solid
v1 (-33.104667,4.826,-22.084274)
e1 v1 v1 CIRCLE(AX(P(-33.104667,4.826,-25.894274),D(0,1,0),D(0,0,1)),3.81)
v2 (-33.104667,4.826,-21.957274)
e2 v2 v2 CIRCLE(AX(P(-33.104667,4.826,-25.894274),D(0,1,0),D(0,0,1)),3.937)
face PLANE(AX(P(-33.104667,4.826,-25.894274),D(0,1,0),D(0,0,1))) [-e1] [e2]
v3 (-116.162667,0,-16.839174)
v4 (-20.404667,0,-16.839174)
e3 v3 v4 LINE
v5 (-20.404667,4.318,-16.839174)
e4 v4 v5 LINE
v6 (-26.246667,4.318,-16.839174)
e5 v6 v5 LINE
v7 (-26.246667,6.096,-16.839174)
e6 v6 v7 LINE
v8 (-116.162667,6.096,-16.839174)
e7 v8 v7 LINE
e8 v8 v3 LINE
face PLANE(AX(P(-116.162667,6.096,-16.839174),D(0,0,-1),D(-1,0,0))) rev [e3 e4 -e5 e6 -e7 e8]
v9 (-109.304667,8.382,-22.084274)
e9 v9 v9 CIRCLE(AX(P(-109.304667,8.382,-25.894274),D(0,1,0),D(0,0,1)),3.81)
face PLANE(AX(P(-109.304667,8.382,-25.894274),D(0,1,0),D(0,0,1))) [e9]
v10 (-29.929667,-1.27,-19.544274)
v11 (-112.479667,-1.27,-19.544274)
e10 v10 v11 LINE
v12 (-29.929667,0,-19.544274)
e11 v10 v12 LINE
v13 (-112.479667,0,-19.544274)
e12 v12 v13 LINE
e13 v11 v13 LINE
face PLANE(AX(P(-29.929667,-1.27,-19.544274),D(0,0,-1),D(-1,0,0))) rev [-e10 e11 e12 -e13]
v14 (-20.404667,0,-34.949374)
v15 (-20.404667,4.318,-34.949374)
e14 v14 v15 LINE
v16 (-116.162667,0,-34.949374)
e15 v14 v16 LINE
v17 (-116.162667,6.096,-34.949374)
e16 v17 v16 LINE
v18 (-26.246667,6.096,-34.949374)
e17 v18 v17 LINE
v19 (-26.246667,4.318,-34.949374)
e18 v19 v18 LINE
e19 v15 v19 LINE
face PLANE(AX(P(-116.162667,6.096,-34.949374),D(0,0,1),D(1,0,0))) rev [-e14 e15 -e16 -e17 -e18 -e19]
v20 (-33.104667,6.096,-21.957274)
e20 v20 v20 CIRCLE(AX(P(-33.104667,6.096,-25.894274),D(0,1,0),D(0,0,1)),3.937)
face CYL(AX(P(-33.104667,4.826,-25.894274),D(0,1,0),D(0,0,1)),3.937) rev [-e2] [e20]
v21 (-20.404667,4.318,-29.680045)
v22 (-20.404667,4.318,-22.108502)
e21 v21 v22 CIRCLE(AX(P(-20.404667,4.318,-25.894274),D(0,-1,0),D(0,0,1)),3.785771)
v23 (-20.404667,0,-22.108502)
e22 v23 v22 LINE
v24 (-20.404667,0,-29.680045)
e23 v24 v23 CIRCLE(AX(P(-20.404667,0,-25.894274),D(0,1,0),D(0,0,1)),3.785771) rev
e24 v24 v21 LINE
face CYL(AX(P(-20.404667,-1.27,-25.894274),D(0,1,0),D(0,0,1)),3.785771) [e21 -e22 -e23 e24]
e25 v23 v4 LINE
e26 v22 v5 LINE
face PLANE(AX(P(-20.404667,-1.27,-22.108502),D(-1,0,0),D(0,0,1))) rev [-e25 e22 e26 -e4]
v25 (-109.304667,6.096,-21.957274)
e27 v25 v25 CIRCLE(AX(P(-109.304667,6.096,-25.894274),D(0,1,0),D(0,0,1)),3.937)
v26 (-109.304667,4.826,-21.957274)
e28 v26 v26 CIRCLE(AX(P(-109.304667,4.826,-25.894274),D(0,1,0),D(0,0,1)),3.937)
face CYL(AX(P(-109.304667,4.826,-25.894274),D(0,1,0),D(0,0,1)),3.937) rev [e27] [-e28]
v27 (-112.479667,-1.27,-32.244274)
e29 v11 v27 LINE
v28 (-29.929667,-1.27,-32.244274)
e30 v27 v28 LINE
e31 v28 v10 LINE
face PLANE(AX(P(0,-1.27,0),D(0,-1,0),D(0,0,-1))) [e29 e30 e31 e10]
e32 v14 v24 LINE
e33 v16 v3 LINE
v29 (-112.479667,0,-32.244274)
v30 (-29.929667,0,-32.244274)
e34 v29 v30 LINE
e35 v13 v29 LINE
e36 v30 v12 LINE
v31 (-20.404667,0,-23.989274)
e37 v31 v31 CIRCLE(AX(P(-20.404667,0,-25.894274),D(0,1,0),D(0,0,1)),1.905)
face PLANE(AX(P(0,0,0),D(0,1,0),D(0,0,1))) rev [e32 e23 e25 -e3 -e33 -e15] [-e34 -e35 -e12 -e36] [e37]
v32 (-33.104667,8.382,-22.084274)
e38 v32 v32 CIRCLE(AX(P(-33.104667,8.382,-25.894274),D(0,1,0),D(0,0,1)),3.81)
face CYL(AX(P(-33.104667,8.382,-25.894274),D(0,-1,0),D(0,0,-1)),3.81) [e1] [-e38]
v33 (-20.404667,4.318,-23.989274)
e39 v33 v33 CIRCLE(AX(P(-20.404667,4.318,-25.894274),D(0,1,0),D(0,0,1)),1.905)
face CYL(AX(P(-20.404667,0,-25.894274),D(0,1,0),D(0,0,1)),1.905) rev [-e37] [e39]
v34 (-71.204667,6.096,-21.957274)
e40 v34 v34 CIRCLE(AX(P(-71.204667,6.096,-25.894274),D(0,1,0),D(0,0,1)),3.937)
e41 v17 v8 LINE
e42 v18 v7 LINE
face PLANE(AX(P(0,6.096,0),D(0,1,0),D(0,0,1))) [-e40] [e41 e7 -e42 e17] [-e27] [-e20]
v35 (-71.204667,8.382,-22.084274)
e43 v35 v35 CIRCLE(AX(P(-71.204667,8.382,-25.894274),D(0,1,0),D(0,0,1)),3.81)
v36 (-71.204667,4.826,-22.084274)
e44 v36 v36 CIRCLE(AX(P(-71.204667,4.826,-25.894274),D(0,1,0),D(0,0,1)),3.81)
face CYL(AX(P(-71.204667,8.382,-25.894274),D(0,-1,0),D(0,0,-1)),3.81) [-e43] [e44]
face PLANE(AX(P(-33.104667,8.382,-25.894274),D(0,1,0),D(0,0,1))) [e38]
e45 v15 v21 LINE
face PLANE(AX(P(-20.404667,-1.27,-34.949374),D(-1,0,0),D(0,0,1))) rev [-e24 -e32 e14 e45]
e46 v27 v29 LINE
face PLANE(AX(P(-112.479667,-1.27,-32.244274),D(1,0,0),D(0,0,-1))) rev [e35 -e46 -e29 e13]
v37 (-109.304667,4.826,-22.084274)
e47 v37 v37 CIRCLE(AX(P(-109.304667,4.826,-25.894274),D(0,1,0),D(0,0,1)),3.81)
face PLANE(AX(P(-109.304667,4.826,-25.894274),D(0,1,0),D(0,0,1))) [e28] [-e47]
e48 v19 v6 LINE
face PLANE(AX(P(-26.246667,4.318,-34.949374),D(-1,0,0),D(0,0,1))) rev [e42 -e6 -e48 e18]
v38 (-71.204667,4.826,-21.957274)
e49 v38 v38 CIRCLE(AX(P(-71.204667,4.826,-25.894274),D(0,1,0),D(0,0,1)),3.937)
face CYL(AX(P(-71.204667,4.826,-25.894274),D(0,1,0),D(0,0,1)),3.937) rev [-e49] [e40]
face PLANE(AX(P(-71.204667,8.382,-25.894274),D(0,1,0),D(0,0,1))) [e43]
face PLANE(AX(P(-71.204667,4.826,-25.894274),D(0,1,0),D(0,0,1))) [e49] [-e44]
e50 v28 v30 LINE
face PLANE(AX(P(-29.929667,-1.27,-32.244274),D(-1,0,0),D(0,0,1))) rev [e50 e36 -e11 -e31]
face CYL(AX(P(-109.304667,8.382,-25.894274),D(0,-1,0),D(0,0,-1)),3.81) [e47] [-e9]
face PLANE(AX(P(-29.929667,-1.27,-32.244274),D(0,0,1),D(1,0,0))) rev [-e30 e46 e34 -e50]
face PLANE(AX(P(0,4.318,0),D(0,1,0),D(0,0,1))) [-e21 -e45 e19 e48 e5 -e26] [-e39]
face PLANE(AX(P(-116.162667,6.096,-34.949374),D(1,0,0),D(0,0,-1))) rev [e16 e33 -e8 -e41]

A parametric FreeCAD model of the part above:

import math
import FreeCAD as App
import Part
import Sketcher

V = App.Vector
Q = App.Units.Quantity


def add_polygon(sketch, points):
    """Adds a closed chain of lines whose ends are joined by coincident constraints."""
    first, n = sketch.GeometryCount, len(points)
    for a, b in zip(points, points[1:] + points[:1]):
        sketch.addGeometry(Part.LineSegment(App.Vector(*a, 0), App.Vector(*b, 0)), False)
    for i in range(n):
        sketch.addConstraint(Sketcher.Constraint("Coincident", first + i, 2, first + (i + 1) % n, 1))

doc = App.newDocument("Part")
body = doc.addObject("PartDesign::Body", "Body")

# Sketch on XZ plane
sketch1 = doc.addObject("Sketcher::SketchObject", "Sketch")
body.addObject(sketch1)
sketch1.AttachmentSupport = (doc.XZ_Plane, [""])
sketch1.MapMode = "FlatFace"
add_polygon(sketch1, [(-116, -35), (-116, -17), (-17, -17), (-17, -35)])  # lines 0-3
sketch1.addConstraint([
    Sketcher.Constraint("Vertical", 0),
    Sketcher.Constraint("Horizontal", 1),
    Sketcher.Constraint("Vertical", 2),
    Sketcher.Constraint("Horizontal", 3),
    Sketcher.Constraint("DistanceX", 1, 1, 1, 2, Q("3.92 in")),
    Sketcher.Constraint("DistanceY", 0, 1, 0, 2, Q("0.713 in")),
    Sketcher.Constraint("DistanceX", 0, 2, -1, 1, 116.162667),
    Sketcher.Constraint("DistanceY", 0, 2, -1, 1, 16.839174),
])
pad1 = doc.addObject("PartDesign::Pad", "Pad")
body.addObject(pad1)
pad1.Profile = sketch1
pad1.Length = Q("0.24 in")
pad1.Reversed = True

# Sketch on XZ plane
sketch2 = doc.addObject("Sketcher::SketchObject", "Sketch001")
body.addObject(sketch2)
sketch2.AttachmentSupport = (doc.XZ_Plane, [""])
sketch2.MapMode = "FlatFace"
sketch2.AttachmentOffset = App.Placement(V(0, 0, -0.24 * 25.4), App.Rotation())
add_polygon(sketch2, [(-26, -35), (-26, -17), (-17, -17), (-17, -35)])  # lines 0-3
sketch2.addConstraint([
    Sketcher.Constraint("Vertical", 0),
    Sketcher.Constraint("Horizontal", 1),
    Sketcher.Constraint("Vertical", 2),
    Sketcher.Constraint("Horizontal", 3),
    Sketcher.Constraint("DistanceX", 1, 1, 1, 2, Q("0.38 in")),
    Sketcher.Constraint("DistanceY", 0, 1, 0, 2, Q("0.713 in")),
    Sketcher.Constraint("DistanceX", 0, 2, -1, 1, 26.246667),
    Sketcher.Constraint("DistanceY", 0, 2, -1, 1, 16.839174),
])
pocket1 = doc.addObject("PartDesign::Pocket", "Pocket")
body.addObject(pocket1)
pocket1.Profile = sketch2
pocket1.Length = Q("0.07 in")
pocket1.Reversed = True

# Sketch on XZ plane
sketch3 = doc.addObject("Sketcher::SketchObject", "Sketch002")
body.addObject(sketch3)
sketch3.AttachmentSupport = (doc.XZ_Plane, [""])
sketch3.MapMode = "FlatFace"
sketch3.AttachmentOffset = App.Placement(V(0, 0, -0.17 * 25.4), App.Rotation())
sketch3.addGeometry(Part.Circle(V(-20.4, -25.9, 0), V(0, 0, 1), 1.9), False)
sketch3.addConstraint([
    Sketcher.Constraint("Diameter", 0, Q("0.15 in")),
    Sketcher.Constraint("DistanceX", 0, 3, -1, 1, 20.404667),
    Sketcher.Constraint("DistanceY", 0, 3, -1, 1, 25.894274),
])
pocket2 = doc.addObject("PartDesign::Pocket", "Pocket001")
body.addObject(pocket2)
pocket2.Profile = sketch3
pocket2.Type = "ThroughAll"
pocket2.Reversed = True

# Sketch on XZ plane
sketch4 = doc.addObject("Sketcher::SketchObject", "Sketch003")
body.addObject(sketch4)
sketch4.AttachmentSupport = (doc.XZ_Plane, [""])
sketch4.MapMode = "FlatFace"
sketch4.AttachmentOffset = App.Placement(V(0, 0, -0.24 * 25.4), App.Rotation())
sketch4.addGeometry([
    Part.Circle(V(-33.1, -25.9, 0), V(0, 0, 1), 3.9),
    Part.Circle(V(-71.2, -25.9, 0), V(0, 0, 1), 3.9),
    Part.Circle(V(-109.3, -25.9, 0), V(0, 0, 1), 3.9),
], False)
sketch4.addConstraint([
    Sketcher.Constraint("Equal", 0, 1),
    Sketcher.Constraint("Equal", 1, 2),
    Sketcher.Constraint("Horizontal", 0, 3, 1, 3),
    Sketcher.Constraint("Horizontal", 1, 3, 2, 3),
    Sketcher.Constraint("Diameter", 0, Q("0.31 in")),
    Sketcher.Constraint("DistanceX", 2, 3, 0, 3, Q("3 in")),
    Sketcher.Constraint("DistanceX", 1, 3, 0, 3, Q("1.5 in")),
    Sketcher.Constraint("DistanceX", 0, 3, -1, 1, 33.104667),
    Sketcher.Constraint("DistanceY", 0, 3, -1, 1, 25.894274),
])
pocket3 = doc.addObject("PartDesign::Pocket", "Pocket002")
body.addObject(pocket3)
pocket3.Profile = sketch4
pocket3.Length = Q("0.05 in")
pocket3.Reversed = True

# Sketch on XZ plane
sketch5 = doc.addObject("Sketcher::SketchObject", "Sketch004")
body.addObject(sketch5)
sketch5.AttachmentSupport = (doc.XZ_Plane, [""])
sketch5.MapMode = "FlatFace"
add_polygon(sketch5, [(-112, -20), (-112, -32), (-30, -32), (-30, -20)])  # lines 0-3
sketch5.addConstraint([
    Sketcher.Constraint("Vertical", 0),
    Sketcher.Constraint("Horizontal", 1),
    Sketcher.Constraint("Vertical", 2),
    Sketcher.Constraint("Horizontal", 3),
    Sketcher.Constraint("DistanceY", 0, 2, 0, 1, Q("0.5 in")),
    Sketcher.Constraint("DistanceX", 1, 1, 1, 2, Q("3.25 in")),
    Sketcher.Constraint("DistanceX", 0, 2, -1, 1, 112.479667),
    Sketcher.Constraint("DistanceY", 0, 2, -1, 1, 32.244274),
])
pad2 = doc.addObject("PartDesign::Pad", "Pad001")
body.addObject(pad2)
pad2.Profile = sketch5
pad2.Length = Q("0.05 in")

# Sketch on XZ plane
sketch6 = doc.addObject("Sketcher::SketchObject", "Sketch005")
body.addObject(sketch6)
sketch6.AttachmentSupport = (doc.XZ_Plane, [""])
sketch6.MapMode = "FlatFace"
sketch6.AttachmentOffset = App.Placement(V(0, 0, -0.17 * 25.4), App.Rotation())
sketch6.addGeometry([
    Part.LineSegment(V(-16.6, -34.9, 0), V(-20.4, -34.9, 0)),  # 0
    Part.LineSegment(V(-20.4, -34.9, 0), V(-20.4, -29.7, 0)),  # 1
    Part.ArcOfCircle(Part.Circle(V(-20.4, -25.9, 0), V(0, 0, 1), 3.8), math.radians(-90), math.radians(90)),  # 2
    Part.LineSegment(V(-20.4, -22.1, 0), V(-20.4, -16.8, 0)),  # 3
    Part.LineSegment(V(-20.4, -16.8, 0), V(-16.6, -16.8, 0)),  # 4
    Part.LineSegment(V(-16.6, -16.8, 0), V(-16.6, -34.9, 0)),  # 5
], False)
sketch6.addConstraint([
    Sketcher.Constraint("Coincident", 0, 2, 1, 1),
    Sketcher.Constraint("Coincident", 1, 2, 2, 1),
    Sketcher.Constraint("Coincident", 2, 2, 3, 1),
    Sketcher.Constraint("Coincident", 3, 2, 4, 1),
    Sketcher.Constraint("Coincident", 4, 2, 5, 1),
    Sketcher.Constraint("Coincident", 5, 2, 0, 1),
    Sketcher.Constraint("Horizontal", 0),
    Sketcher.Constraint("Vertical", 1),
    Sketcher.Constraint("Vertical", 3),
    Sketcher.Constraint("Horizontal", 4),
    Sketcher.Constraint("Vertical", 5),
    Sketcher.Constraint("Vertical", 2, 3, 0, 2),
    Sketcher.Constraint("Vertical", 1, 2, 2, 2),
    Sketcher.Constraint("Equal", 1, 3),
    Sketcher.Constraint("DistanceX", 0, 2, 0, 1, Q("0.15 in")),
    Sketcher.Constraint("DistanceY", 5, 2, 5, 1, Q("0.713 in")),
    Sketcher.Constraint("Radius", 2, 3.785771),
    Sketcher.Constraint("DistanceX", 2, 3, -1, 1, 20.404667),
    Sketcher.Constraint("DistanceY", 2, 3, -1, 1, 25.894274),
])
pocket4 = doc.addObject("PartDesign::Pocket", "Pocket003")
body.addObject(pocket4)
pocket4.Profile = sketch6
pocket4.Type = "ThroughAll"
pocket4.Reversed = True

# Sketch on XZ plane
sketch7 = doc.addObject("Sketcher::SketchObject", "Sketch006")
body.addObject(sketch7)
sketch7.AttachmentSupport = (doc.XZ_Plane, [""])
sketch7.MapMode = "FlatFace"
sketch7.AttachmentOffset = App.Placement(V(0, 0, -0.19 * 25.4), App.Rotation())
sketch7.addGeometry([
    Part.Circle(V(-33.1, -25.9, 0), V(0, 0, 1), 3.8),
    Part.Circle(V(-71.2, -25.9, 0), V(0, 0, 1), 3.8),
    Part.Circle(V(-109.3, -25.9, 0), V(0, 0, 1), 3.8),
], False)
sketch7.addConstraint([
    Sketcher.Constraint("Equal", 0, 1),
    Sketcher.Constraint("Equal", 1, 2),
    Sketcher.Constraint("Horizontal", 0, 3, 1, 3),
    Sketcher.Constraint("Horizontal", 1, 3, 2, 3),
    Sketcher.Constraint("Diameter", 0, Q("0.3 in")),
    Sketcher.Constraint("DistanceX", 2, 3, 0, 3, Q("3 in")),
    Sketcher.Constraint("DistanceX", 1, 3, 0, 3, Q("1.5 in")),
    Sketcher.Constraint("DistanceX", 0, 3, -1, 1, 33.104667),
    Sketcher.Constraint("DistanceY", 0, 3, -1, 1, 25.894274),
])
pad3 = doc.addObject("PartDesign::Pad", "Pad002")
body.addObject(pad3)
pad3.Profile = sketch7
pad3.Length = Q("0.14 in")
pad3.Reversed = True

doc.recompute()
